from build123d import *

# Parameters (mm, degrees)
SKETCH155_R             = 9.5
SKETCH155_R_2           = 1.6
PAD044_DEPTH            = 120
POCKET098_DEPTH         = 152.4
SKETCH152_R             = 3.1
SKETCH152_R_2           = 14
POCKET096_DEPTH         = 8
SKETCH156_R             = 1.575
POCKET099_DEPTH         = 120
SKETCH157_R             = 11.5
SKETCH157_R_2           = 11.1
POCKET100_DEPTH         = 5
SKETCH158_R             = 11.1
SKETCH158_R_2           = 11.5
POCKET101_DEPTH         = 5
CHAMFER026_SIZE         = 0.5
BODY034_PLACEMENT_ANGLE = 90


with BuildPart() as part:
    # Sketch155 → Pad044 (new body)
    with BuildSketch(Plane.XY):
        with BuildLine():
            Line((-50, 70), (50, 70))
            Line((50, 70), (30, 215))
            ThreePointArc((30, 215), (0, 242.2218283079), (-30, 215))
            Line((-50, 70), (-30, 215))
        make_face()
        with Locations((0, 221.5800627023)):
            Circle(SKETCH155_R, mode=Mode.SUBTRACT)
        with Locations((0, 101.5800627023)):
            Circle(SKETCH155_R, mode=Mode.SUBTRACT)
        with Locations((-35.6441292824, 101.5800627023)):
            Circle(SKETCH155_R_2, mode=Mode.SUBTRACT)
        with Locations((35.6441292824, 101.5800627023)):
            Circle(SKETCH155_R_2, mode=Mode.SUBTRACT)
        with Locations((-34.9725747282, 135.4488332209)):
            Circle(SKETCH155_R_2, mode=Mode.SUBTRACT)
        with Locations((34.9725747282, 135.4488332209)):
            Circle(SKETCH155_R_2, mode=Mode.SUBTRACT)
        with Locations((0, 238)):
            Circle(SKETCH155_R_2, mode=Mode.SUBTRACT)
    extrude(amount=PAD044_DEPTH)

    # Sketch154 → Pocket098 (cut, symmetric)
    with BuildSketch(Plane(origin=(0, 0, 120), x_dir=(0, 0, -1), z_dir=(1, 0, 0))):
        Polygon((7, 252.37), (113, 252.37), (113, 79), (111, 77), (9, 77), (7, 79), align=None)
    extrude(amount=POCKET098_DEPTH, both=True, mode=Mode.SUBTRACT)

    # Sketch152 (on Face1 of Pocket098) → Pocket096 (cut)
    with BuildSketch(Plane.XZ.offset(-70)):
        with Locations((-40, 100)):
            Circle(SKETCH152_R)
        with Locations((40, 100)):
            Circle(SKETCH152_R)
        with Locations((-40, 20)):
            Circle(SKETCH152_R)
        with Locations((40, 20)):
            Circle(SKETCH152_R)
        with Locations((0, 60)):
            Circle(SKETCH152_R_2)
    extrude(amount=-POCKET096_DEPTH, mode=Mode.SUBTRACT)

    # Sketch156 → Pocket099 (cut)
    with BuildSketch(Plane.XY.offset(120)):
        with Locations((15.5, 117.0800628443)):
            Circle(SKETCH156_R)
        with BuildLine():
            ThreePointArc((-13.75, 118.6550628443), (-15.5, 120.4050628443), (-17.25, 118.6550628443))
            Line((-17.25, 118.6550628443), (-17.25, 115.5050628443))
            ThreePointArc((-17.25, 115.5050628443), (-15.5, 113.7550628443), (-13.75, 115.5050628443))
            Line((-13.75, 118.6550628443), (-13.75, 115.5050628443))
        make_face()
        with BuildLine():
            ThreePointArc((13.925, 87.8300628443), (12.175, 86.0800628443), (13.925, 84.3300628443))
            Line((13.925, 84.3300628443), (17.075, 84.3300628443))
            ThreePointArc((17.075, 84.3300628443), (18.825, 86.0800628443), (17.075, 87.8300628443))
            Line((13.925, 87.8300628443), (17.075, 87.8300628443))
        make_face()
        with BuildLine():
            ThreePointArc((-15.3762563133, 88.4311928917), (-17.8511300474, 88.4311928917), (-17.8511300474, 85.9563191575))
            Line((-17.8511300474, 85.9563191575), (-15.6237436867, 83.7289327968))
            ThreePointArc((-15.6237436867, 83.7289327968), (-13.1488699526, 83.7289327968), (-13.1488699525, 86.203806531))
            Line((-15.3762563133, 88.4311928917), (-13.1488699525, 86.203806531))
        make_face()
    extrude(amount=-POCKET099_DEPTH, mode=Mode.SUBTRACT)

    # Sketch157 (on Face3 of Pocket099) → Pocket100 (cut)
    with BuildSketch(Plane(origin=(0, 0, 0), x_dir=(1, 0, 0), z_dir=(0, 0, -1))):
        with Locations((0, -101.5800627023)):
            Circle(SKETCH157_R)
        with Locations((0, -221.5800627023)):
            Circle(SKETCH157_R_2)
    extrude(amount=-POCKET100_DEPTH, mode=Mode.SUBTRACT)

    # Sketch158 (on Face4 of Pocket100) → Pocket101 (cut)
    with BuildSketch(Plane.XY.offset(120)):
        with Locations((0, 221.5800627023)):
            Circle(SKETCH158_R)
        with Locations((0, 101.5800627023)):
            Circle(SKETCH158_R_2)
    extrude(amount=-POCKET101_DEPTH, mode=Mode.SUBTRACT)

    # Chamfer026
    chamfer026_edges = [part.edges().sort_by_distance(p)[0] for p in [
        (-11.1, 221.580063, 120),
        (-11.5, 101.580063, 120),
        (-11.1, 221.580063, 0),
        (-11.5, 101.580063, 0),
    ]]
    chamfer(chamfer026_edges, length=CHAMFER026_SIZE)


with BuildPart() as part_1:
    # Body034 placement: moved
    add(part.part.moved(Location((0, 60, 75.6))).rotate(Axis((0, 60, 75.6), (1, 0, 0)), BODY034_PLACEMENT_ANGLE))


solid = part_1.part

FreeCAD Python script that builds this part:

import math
import FreeCAD as App
import Part
import Sketcher
Q = App.Units.Quantity


def edges_at(feature, points):
    """Names of the edges that pass closest to the given points."""
    edges = feature.Shape.Edges
    near = lambda p: min(range(len(edges)), key=lambda i: edges[i].distToShape(Part.Vertex(*p))[0])
    return sorted({f"Edge{near(p) + 1}" for p in points})


def add_polygon(sketch, points):
    """Adds a closed chain of lines whose ends are joined by coincident constraints."""
    first, n = sketch.GeometryCount, len(points)
    for a, b in zip(points, points[1:] + points[:1]):
        sketch.addGeometry(Part.LineSegment(App.Vector(*a, 0), App.Vector(*b, 0)), False)
    for i in range(n):
        sketch.addConstraint(Sketcher.Constraint("Coincident", first + i, 2, first + (i + 1) % n, 1))

doc = App.newDocument("Part")
body = doc.addObject("PartDesign::Body", "Body")

sketch1 = body.newObject("Sketcher::SketchObject", "Sketch")
sketch1.AttachmentSupport = (doc.getObject("XY_Plane"), [""])
sketch1.MapMode = "FlatFace"
sketch1.addGeometry([
    Part.LineSegment(App.Vector(-50, 70, 0), App.Vector(50, 70, 0)),
    Part.LineSegment(App.Vector(50, 70, 0), App.Vector(30, 215, 0)),
    Part.ArcOfCircle(Part.Circle(App.Vector(0, 212.1, 0), App.Vector(0, 0, 1), 30.1), math.radians(6), math.radians(174)),
    Part.LineSegment(App.Vector(-30, 215, 0), App.Vector(-50, 70, 0)),
    Part.Circle(App.Vector(-35.6, 101.6, 0), App.Vector(0, 0, 1), 1.6),
    Part.Circle(App.Vector(-35, 135.4, 0), App.Vector(0, 0, 1), 1.6),
    Part.Circle(App.Vector(0, 101.6, 0), App.Vector(0, 0, 1), 9.5),
    Part.Circle(App.Vector(35.6, 101.6, 0), App.Vector(0, 0, 1), 1.6),
    Part.Circle(App.Vector(35, 135.4, 0), App.Vector(0, 0, 1), 1.6),
    Part.Circle(App.Vector(0, 221.6, 0), App.Vector(0, 0, 1), 9.5),
    Part.Circle(App.Vector(0, 238, 0), App.Vector(0, 0, 1), 1.6),
], False)
sketch1.addConstraint([
    Sketcher.Constraint("Coincident", 0, 2, 1, 1),
    Sketcher.Constraint("Coincident", 1, 2, 2, 1),
    Sketcher.Constraint("Coincident", 2, 2, 3, 1),
    Sketcher.Constraint("Coincident", 3, 2, 0, 1),
    Sketcher.Constraint("Horizontal", 0),
    Sketcher.Constraint("Equal", 4, 5),
    Sketcher.Constraint("Equal", 5, 7),
    Sketcher.Constraint("Equal", 7, 8),
    Sketcher.Constraint("Equal", 6, 9),
    Sketcher.Constraint("Equal", 8, 10),
    Sketcher.Constraint("Symmetric", 4, 3, 7, 3, -2),
    Sketcher.Constraint("Symmetric", 5, 3, 8, 3, -2),
    Sketcher.Constraint("Symmetric", 1, 2, 2, 2, -2),
    Sketcher.Constraint("PointOnObject", 6, 3, -2),
    Sketcher.Constraint("PointOnObject", 9, 3, -2),
    Sketcher.Constraint("PointOnObject", 10, 3, -2),
    Sketcher.Constraint("Horizontal", 4, 3, 6, 3),
    Sketcher.Constraint("Equal", 1, 3),
    Sketcher.Constraint("Diameter", 6, Q("19 mm")),
    Sketcher.Constraint("Diameter", 4, Q("3.2 mm")),
    Sketcher.Constraint("DistanceX", 0, 1, 0, 2, Q("100 mm")),
    Sketcher.Constraint("DistanceY", -1, 1, 10, 3, Q("238 mm")),
    Sketcher.Constraint("DistanceY", -1, 1, 0, 2, Q("70 mm")),
    Sketcher.Constraint("DistanceX", -1, 1, 1, 2, Q("30 mm")),
    Sketcher.Constraint("DistanceY", -1, 1, 1, 2, Q("215 mm")),
    Sketcher.Constraint("DistanceY", 6, 3, 9, 3, Q("120 mm")),
    Sketcher.Constraint("DistanceY", 4, 3, 2, 3, Q("110.5 mm")),
    Sketcher.Constraint("Radius", 2, Q("30.141766 mm")),
    Sketcher.Constraint("DistanceX", 4, 3, -1, 1, Q("35.644129 mm")),
    Sketcher.Constraint("DistanceY", 4, 3, 5, 3, Q("33.868771 mm")),
    Sketcher.Constraint("DistanceX", 5, 3, 8, 3, Q("69.945149 mm")),
])
pad1 = body.newObject("PartDesign::Pad", "Pad")
pad1.Profile = sketch1
pad1.Length = 120

sketch2 = body.newObject("Sketcher::SketchObject", "Sketch001")
sketch2.AttachmentSupport = (doc.getObject("YZ_Plane"), [""])
sketch2.MapMode = "FlatFace"
add_polygon(sketch2, [(252.4, 7), (252.4, 113), (79, 113), (77, 111), (77, 9), (79, 7)])
sketch2.addConstraint([
    Sketcher.Constraint("Vertical", 0),
    Sketcher.Constraint("Horizontal", 1),
    Sketcher.Constraint("Vertical", 3),
    Sketcher.Constraint("Horizontal", 5),
    Sketcher.Constraint("Perpendicular", 2, 4),
    Sketcher.Constraint("Vertical", 1, 2, 4, 2),
    Sketcher.Constraint("Equal", 2, 4),
    Sketcher.Constraint("DistanceY", 0, 1, 0, 2, Q("106 mm")),
    Sketcher.Constraint("DistanceY", 3, 2, 3, 1, Q("102 mm")),
    Sketcher.Constraint("DistanceY", -1, 1, 0, 2, Q("113 mm")),
    Sketcher.Constraint("DistanceX", -1, 1, 1, 2, Q("79 mm")),
    Sketcher.Constraint("DistanceX", 1, 2, 1, 1, Q("173.37 mm")),
])
pocket1 = body.newObject("PartDesign::Pocket", "Pocket")
pocket1.Profile = sketch2
pocket1.Length = 304.8
pocket1.Midplane = True

sketch3 = body.newObject("Sketcher::SketchObject", "Sketch002")
sketch3.AttachmentSupport = (doc.getObject("XZ_Plane"), [""])
sketch3.MapMode = "FlatFace"
sketch3.AttachmentOffset = App.Placement(App.Vector(0, 0, -70), App.Rotation())
sketch3.addGeometry([
    Part.Circle(App.Vector(-40, 100, 0), App.Vector(0, 0, 1), 3.1),
    Part.Circle(App.Vector(40, 100, 0), App.Vector(0, 0, 1), 3.1),
    Part.Circle(App.Vector(-40, 20, 0), App.Vector(0, 0, 1), 3.1),
    Part.Circle(App.Vector(40, 20, 0), App.Vector(0, 0, 1), 3.1),
    Part.Circle(App.Vector(0, 60, 0), App.Vector(0, 0, 1), 14),
], False)
sketch3.addConstraint([
    Sketcher.Constraint("Equal", 0, 1),
    Sketcher.Constraint("Equal", 1, 2),
    Sketcher.Constraint("Equal", 2, 3),
    Sketcher.Constraint("Symmetric", 0, 3, 1, 3, -2),
    Sketcher.Constraint("Symmetric", 2, 3, 3, 3, -2),
    Sketcher.Constraint("PointOnObject", 4, 3, -2),
    Sketcher.Constraint("Vertical", 0, 3, 2, 3),
    Sketcher.Constraint("Diameter", 4, Q("28 mm")),
    Sketcher.Constraint("Diameter", 0, Q("6.2 mm")),
    Sketcher.Constraint("DistanceX", 0, 3, -1, 1, Q("40 mm")),
    Sketcher.Constraint("DistanceY", -1, 1, 0, 3, Q("100 mm")),
    Sketcher.Constraint("DistanceY", -1, 1, 2, 3, Q("20 mm")),
    Sketcher.Constraint("DistanceY", -1, 1, 4, 3, Q("60 mm")),
])
pocket2 = body.newObject("PartDesign::Pocket", "Pocket001")
pocket2.Profile = sketch3
pocket2.Length = 8

sketch4 = body.newObject("Sketcher::SketchObject", "Sketch003")
sketch4.AttachmentSupport = (doc.getObject("XY_Plane"), [""])
sketch4.MapMode = "FlatFace"
sketch4.AttachmentOffset = App.Placement(App.Vector(0, 0, 120), App.Rotation())
sketch4.addGeometry([
    Part.Circle(App.Vector(15.5, 117.1, 0), App.Vector(0, 0, 1), 1.6),
    Part.ArcOfCircle(Part.Circle(App.Vector(-15.5, 118.7, 0), App.Vector(0, 0, 1), 1.8), math.radians(0), math.radians(180)),
    Part.LineSegment(App.Vector(-17.2, 118.7, 0), App.Vector(-17.2, 115.5, 0)),
    Part.ArcOfCircle(Part.Circle(App.Vector(-15.5, 115.5, 0), App.Vector(0, 0, 1), 1.8), math.radians(180), math.radians(360)),
    Part.LineSegment(App.Vector(-13.8, 115.5, 0), App.Vector(-13.8, 118.7, 0)),
    Part.ArcOfCircle(Part.Circle(App.Vector(13.9, 86.1, 0), App.Vector(0, 0, 1), 1.8), math.radians(90), math.radians(270)),
    Part.LineSegment(App.Vector(13.9, 84.3, 0), App.Vector(17.1, 84.3, 0)),
    Part.ArcOfCircle(Part.Circle(App.Vector(17.1, 86.1, 0), App.Vector(0, 0, 1), 1.8), math.radians(-90), math.radians(90)),
    Part.LineSegment(App.Vector(17.1, 87.8, 0), App.Vector(13.9, 87.8, 0)),
    Part.ArcOfCircle(Part.Circle(App.Vector(-16.6, 87.2, 0), App.Vector(0, 0, 1), 1.8), math.radians(45), math.radians(225)),
    Part.LineSegment(App.Vector(-17.9, 86, 0), App.Vector(-15.6, 83.7, 0)),
    Part.ArcOfCircle(Part.Circle(App.Vector(-14.4, 85, 0), App.Vector(0, 0, 1), 1.8), math.radians(-135), math.radians(45)),
    Part.LineSegment(App.Vector(-13.1, 86.2, 0), App.Vector(-15.4, 88.4, 0)),
], False)
sketch4.addConstraint([
    Sketcher.Constraint("Tangent", 1, 2, 2, 1),
    Sketcher.Constraint("Tangent", 2, 2, 3, 1),
    Sketcher.Constraint("Tangent", 3, 2, 4, 1),
    Sketcher.Constraint("Tangent", 4, 2, 1, 1),
    Sketcher.Constraint("Tangent", 5, 2, 6, 1),
    Sketcher.Constraint("Tangent", 6, 2, 7, 1),
    Sketcher.Constraint("Tangent", 7, 2, 8, 1),
    Sketcher.Constraint("Tangent", 8, 2, 5, 1),
    Sketcher.Constraint("Tangent", 9, 2, 10, 1),
    Sketcher.Constraint("Tangent", 10, 2, 11, 1),
    Sketcher.Constraint("Tangent", 11, 2, 12, 1),
    Sketcher.Constraint("Tangent", 12, 2, 9, 1),
    Sketcher.Constraint("Vertical", 2),
    Sketcher.Constraint("Vertical", 4),
    Sketcher.Constraint("Horizontal", 6),
    Sketcher.Constraint("Horizontal", 8),
    Sketcher.Constraint("Equal", 3, 5),
    Sketcher.Constraint("Equal", 7, 9),
    Sketcher.Constraint("Equal", 9, 11),
    Sketcher.Constraint("Equal", 8, 2),
    Sketcher.Constraint("Diameter", 0, Q("3.15 mm")),
    Sketcher.Constraint("Angle", 10, Q("-45 deg")),
    Sketcher.Constraint("Radius", 1, Q("1.75 mm")),
    Sketcher.Constraint("DistanceX", 1, 3, 0, 3, Q("31 mm")),
    Sketcher.Constraint("DistanceY", 5, 3, 0, 3, Q("31 mm")),
    Sketcher.Constraint("DistanceX", 6, 1, 6, 2, Q("3.15 mm")),
    Sketcher.Constraint("DistanceX", -1, 1, 0, 3, Q("15.5 mm")),
    Sketcher.Constraint("Distance", 10, Q("3.15 mm")),
    Sketcher.Constraint("DistanceX", -1, 1, 5, 3, Q("13.925 mm")),
    Sketcher.Constraint("DistanceY", 0, 3, 1, 3, Q("1.575 mm")),
    Sketcher.Constraint("DistanceY", -1, 1, 11, 3, Q("84.96637 mm")),
    Sketcher.Constraint("DistanceX", 9, 2, -1, 1, Q("17.85113 mm")),
    Sketcher.Constraint("DistanceY", 10, 2, 5, 2, Q("0.60113 mm")),
])
pocket3 = body.newObject("PartDesign::Pocket", "Pocket002")
pocket3.Profile = sketch4
pocket3.Length = 120

sketch5 = body.newObject("Sketcher::SketchObject", "Sketch004")
sketch5.AttachmentSupport = (doc.getObject("XY_Plane"), [""])
sketch5.MapMode = "FlatFace"
sketch5.addGeometry([
    Part.Circle(App.Vector(0, 102, 0), App.Vector(0, 0, 1), 12),
    Part.Circle(App.Vector(0, 222, 0), App.Vector(0, 0, 1), 11),
], False)
sketch5.addConstraint([
    Sketcher.Constraint("PointOnObject", 0, 3, -2),
    Sketcher.Constraint("PointOnObject", 1, 3, -2),
    Sketcher.Constraint("Diameter", 0, Q("23 mm")),
    Sketcher.Constraint("Diameter", 1, Q("22.2 mm")),
    Sketcher.Constraint("DistanceY", 0, 3, 1, 3, Q("120 mm")),
    Sketcher.Constraint("DistanceY", -1, 1, 0, 3, Q("101.580063 mm")),
])
pocket4 = body.newObject("PartDesign::Pocket", "Pocket003")
pocket4.Profile = sketch5
pocket4.Length = 5
pocket4.Reversed = True

sketch6 = body.newObject("Sketcher::SketchObject", "Sketch005")
sketch6.AttachmentSupport = (doc.getObject("XY_Plane"), [""])
sketch6.MapMode = "FlatFace"
sketch6.AttachmentOffset = App.Placement(App.Vector(0, 0, 120), App.Rotation())
sketch6.addGeometry([
    Part.Circle(App.Vector(0, 222, 0), App.Vector(0, 0, 1), 11),
    Part.Circle(App.Vector(0, 102, 0), App.Vector(0, 0, 1), 12),
], False)
sketch6.addConstraint([
    Sketcher.Constraint("PointOnObject", 0, 3, -2),
    Sketcher.Constraint("PointOnObject", 1, 3, -2),
    Sketcher.Constraint("Diameter", 1, Q("23 mm")),
    Sketcher.Constraint("Diameter", 0, Q("22.2 mm")),
    Sketcher.Constraint("DistanceY", 1, 3, 0, 3, Q("120 mm")),
    Sketcher.Constraint("DistanceY", -1, 1, 0, 3, Q("221.580063 mm")),
])
pocket5 = body.newObject("PartDesign::Pocket", "Pocket004")
pocket5.Profile = sketch6
pocket5.Length = 5
doc.recompute()

chamfer = body.newObject("PartDesign::Chamfer", "Chamfer")
chamfer.Base = (pocket5, edges_at(pocket5, [
    (-11.1, 221.58, 120),
    (-11.5, 101.58, 120),
    (-11.1, 221.58, 0),
    (-11.5, 101.58, 0),
]))
chamfer.Size = 0.5
body2 = doc.addObject("PartDesign::Body", "Body001")
doc.recompute()

body.Placement = App.Placement(App.Vector(0, 60, 75.6), App.Rotation(App.Vector(1, 0, 0), 90))
boolean = body2.newObject("PartDesign::Boolean", "Boolean")
boolean.Type = "Fuse"
boolean.addObjects([body])

doc.recompute()
